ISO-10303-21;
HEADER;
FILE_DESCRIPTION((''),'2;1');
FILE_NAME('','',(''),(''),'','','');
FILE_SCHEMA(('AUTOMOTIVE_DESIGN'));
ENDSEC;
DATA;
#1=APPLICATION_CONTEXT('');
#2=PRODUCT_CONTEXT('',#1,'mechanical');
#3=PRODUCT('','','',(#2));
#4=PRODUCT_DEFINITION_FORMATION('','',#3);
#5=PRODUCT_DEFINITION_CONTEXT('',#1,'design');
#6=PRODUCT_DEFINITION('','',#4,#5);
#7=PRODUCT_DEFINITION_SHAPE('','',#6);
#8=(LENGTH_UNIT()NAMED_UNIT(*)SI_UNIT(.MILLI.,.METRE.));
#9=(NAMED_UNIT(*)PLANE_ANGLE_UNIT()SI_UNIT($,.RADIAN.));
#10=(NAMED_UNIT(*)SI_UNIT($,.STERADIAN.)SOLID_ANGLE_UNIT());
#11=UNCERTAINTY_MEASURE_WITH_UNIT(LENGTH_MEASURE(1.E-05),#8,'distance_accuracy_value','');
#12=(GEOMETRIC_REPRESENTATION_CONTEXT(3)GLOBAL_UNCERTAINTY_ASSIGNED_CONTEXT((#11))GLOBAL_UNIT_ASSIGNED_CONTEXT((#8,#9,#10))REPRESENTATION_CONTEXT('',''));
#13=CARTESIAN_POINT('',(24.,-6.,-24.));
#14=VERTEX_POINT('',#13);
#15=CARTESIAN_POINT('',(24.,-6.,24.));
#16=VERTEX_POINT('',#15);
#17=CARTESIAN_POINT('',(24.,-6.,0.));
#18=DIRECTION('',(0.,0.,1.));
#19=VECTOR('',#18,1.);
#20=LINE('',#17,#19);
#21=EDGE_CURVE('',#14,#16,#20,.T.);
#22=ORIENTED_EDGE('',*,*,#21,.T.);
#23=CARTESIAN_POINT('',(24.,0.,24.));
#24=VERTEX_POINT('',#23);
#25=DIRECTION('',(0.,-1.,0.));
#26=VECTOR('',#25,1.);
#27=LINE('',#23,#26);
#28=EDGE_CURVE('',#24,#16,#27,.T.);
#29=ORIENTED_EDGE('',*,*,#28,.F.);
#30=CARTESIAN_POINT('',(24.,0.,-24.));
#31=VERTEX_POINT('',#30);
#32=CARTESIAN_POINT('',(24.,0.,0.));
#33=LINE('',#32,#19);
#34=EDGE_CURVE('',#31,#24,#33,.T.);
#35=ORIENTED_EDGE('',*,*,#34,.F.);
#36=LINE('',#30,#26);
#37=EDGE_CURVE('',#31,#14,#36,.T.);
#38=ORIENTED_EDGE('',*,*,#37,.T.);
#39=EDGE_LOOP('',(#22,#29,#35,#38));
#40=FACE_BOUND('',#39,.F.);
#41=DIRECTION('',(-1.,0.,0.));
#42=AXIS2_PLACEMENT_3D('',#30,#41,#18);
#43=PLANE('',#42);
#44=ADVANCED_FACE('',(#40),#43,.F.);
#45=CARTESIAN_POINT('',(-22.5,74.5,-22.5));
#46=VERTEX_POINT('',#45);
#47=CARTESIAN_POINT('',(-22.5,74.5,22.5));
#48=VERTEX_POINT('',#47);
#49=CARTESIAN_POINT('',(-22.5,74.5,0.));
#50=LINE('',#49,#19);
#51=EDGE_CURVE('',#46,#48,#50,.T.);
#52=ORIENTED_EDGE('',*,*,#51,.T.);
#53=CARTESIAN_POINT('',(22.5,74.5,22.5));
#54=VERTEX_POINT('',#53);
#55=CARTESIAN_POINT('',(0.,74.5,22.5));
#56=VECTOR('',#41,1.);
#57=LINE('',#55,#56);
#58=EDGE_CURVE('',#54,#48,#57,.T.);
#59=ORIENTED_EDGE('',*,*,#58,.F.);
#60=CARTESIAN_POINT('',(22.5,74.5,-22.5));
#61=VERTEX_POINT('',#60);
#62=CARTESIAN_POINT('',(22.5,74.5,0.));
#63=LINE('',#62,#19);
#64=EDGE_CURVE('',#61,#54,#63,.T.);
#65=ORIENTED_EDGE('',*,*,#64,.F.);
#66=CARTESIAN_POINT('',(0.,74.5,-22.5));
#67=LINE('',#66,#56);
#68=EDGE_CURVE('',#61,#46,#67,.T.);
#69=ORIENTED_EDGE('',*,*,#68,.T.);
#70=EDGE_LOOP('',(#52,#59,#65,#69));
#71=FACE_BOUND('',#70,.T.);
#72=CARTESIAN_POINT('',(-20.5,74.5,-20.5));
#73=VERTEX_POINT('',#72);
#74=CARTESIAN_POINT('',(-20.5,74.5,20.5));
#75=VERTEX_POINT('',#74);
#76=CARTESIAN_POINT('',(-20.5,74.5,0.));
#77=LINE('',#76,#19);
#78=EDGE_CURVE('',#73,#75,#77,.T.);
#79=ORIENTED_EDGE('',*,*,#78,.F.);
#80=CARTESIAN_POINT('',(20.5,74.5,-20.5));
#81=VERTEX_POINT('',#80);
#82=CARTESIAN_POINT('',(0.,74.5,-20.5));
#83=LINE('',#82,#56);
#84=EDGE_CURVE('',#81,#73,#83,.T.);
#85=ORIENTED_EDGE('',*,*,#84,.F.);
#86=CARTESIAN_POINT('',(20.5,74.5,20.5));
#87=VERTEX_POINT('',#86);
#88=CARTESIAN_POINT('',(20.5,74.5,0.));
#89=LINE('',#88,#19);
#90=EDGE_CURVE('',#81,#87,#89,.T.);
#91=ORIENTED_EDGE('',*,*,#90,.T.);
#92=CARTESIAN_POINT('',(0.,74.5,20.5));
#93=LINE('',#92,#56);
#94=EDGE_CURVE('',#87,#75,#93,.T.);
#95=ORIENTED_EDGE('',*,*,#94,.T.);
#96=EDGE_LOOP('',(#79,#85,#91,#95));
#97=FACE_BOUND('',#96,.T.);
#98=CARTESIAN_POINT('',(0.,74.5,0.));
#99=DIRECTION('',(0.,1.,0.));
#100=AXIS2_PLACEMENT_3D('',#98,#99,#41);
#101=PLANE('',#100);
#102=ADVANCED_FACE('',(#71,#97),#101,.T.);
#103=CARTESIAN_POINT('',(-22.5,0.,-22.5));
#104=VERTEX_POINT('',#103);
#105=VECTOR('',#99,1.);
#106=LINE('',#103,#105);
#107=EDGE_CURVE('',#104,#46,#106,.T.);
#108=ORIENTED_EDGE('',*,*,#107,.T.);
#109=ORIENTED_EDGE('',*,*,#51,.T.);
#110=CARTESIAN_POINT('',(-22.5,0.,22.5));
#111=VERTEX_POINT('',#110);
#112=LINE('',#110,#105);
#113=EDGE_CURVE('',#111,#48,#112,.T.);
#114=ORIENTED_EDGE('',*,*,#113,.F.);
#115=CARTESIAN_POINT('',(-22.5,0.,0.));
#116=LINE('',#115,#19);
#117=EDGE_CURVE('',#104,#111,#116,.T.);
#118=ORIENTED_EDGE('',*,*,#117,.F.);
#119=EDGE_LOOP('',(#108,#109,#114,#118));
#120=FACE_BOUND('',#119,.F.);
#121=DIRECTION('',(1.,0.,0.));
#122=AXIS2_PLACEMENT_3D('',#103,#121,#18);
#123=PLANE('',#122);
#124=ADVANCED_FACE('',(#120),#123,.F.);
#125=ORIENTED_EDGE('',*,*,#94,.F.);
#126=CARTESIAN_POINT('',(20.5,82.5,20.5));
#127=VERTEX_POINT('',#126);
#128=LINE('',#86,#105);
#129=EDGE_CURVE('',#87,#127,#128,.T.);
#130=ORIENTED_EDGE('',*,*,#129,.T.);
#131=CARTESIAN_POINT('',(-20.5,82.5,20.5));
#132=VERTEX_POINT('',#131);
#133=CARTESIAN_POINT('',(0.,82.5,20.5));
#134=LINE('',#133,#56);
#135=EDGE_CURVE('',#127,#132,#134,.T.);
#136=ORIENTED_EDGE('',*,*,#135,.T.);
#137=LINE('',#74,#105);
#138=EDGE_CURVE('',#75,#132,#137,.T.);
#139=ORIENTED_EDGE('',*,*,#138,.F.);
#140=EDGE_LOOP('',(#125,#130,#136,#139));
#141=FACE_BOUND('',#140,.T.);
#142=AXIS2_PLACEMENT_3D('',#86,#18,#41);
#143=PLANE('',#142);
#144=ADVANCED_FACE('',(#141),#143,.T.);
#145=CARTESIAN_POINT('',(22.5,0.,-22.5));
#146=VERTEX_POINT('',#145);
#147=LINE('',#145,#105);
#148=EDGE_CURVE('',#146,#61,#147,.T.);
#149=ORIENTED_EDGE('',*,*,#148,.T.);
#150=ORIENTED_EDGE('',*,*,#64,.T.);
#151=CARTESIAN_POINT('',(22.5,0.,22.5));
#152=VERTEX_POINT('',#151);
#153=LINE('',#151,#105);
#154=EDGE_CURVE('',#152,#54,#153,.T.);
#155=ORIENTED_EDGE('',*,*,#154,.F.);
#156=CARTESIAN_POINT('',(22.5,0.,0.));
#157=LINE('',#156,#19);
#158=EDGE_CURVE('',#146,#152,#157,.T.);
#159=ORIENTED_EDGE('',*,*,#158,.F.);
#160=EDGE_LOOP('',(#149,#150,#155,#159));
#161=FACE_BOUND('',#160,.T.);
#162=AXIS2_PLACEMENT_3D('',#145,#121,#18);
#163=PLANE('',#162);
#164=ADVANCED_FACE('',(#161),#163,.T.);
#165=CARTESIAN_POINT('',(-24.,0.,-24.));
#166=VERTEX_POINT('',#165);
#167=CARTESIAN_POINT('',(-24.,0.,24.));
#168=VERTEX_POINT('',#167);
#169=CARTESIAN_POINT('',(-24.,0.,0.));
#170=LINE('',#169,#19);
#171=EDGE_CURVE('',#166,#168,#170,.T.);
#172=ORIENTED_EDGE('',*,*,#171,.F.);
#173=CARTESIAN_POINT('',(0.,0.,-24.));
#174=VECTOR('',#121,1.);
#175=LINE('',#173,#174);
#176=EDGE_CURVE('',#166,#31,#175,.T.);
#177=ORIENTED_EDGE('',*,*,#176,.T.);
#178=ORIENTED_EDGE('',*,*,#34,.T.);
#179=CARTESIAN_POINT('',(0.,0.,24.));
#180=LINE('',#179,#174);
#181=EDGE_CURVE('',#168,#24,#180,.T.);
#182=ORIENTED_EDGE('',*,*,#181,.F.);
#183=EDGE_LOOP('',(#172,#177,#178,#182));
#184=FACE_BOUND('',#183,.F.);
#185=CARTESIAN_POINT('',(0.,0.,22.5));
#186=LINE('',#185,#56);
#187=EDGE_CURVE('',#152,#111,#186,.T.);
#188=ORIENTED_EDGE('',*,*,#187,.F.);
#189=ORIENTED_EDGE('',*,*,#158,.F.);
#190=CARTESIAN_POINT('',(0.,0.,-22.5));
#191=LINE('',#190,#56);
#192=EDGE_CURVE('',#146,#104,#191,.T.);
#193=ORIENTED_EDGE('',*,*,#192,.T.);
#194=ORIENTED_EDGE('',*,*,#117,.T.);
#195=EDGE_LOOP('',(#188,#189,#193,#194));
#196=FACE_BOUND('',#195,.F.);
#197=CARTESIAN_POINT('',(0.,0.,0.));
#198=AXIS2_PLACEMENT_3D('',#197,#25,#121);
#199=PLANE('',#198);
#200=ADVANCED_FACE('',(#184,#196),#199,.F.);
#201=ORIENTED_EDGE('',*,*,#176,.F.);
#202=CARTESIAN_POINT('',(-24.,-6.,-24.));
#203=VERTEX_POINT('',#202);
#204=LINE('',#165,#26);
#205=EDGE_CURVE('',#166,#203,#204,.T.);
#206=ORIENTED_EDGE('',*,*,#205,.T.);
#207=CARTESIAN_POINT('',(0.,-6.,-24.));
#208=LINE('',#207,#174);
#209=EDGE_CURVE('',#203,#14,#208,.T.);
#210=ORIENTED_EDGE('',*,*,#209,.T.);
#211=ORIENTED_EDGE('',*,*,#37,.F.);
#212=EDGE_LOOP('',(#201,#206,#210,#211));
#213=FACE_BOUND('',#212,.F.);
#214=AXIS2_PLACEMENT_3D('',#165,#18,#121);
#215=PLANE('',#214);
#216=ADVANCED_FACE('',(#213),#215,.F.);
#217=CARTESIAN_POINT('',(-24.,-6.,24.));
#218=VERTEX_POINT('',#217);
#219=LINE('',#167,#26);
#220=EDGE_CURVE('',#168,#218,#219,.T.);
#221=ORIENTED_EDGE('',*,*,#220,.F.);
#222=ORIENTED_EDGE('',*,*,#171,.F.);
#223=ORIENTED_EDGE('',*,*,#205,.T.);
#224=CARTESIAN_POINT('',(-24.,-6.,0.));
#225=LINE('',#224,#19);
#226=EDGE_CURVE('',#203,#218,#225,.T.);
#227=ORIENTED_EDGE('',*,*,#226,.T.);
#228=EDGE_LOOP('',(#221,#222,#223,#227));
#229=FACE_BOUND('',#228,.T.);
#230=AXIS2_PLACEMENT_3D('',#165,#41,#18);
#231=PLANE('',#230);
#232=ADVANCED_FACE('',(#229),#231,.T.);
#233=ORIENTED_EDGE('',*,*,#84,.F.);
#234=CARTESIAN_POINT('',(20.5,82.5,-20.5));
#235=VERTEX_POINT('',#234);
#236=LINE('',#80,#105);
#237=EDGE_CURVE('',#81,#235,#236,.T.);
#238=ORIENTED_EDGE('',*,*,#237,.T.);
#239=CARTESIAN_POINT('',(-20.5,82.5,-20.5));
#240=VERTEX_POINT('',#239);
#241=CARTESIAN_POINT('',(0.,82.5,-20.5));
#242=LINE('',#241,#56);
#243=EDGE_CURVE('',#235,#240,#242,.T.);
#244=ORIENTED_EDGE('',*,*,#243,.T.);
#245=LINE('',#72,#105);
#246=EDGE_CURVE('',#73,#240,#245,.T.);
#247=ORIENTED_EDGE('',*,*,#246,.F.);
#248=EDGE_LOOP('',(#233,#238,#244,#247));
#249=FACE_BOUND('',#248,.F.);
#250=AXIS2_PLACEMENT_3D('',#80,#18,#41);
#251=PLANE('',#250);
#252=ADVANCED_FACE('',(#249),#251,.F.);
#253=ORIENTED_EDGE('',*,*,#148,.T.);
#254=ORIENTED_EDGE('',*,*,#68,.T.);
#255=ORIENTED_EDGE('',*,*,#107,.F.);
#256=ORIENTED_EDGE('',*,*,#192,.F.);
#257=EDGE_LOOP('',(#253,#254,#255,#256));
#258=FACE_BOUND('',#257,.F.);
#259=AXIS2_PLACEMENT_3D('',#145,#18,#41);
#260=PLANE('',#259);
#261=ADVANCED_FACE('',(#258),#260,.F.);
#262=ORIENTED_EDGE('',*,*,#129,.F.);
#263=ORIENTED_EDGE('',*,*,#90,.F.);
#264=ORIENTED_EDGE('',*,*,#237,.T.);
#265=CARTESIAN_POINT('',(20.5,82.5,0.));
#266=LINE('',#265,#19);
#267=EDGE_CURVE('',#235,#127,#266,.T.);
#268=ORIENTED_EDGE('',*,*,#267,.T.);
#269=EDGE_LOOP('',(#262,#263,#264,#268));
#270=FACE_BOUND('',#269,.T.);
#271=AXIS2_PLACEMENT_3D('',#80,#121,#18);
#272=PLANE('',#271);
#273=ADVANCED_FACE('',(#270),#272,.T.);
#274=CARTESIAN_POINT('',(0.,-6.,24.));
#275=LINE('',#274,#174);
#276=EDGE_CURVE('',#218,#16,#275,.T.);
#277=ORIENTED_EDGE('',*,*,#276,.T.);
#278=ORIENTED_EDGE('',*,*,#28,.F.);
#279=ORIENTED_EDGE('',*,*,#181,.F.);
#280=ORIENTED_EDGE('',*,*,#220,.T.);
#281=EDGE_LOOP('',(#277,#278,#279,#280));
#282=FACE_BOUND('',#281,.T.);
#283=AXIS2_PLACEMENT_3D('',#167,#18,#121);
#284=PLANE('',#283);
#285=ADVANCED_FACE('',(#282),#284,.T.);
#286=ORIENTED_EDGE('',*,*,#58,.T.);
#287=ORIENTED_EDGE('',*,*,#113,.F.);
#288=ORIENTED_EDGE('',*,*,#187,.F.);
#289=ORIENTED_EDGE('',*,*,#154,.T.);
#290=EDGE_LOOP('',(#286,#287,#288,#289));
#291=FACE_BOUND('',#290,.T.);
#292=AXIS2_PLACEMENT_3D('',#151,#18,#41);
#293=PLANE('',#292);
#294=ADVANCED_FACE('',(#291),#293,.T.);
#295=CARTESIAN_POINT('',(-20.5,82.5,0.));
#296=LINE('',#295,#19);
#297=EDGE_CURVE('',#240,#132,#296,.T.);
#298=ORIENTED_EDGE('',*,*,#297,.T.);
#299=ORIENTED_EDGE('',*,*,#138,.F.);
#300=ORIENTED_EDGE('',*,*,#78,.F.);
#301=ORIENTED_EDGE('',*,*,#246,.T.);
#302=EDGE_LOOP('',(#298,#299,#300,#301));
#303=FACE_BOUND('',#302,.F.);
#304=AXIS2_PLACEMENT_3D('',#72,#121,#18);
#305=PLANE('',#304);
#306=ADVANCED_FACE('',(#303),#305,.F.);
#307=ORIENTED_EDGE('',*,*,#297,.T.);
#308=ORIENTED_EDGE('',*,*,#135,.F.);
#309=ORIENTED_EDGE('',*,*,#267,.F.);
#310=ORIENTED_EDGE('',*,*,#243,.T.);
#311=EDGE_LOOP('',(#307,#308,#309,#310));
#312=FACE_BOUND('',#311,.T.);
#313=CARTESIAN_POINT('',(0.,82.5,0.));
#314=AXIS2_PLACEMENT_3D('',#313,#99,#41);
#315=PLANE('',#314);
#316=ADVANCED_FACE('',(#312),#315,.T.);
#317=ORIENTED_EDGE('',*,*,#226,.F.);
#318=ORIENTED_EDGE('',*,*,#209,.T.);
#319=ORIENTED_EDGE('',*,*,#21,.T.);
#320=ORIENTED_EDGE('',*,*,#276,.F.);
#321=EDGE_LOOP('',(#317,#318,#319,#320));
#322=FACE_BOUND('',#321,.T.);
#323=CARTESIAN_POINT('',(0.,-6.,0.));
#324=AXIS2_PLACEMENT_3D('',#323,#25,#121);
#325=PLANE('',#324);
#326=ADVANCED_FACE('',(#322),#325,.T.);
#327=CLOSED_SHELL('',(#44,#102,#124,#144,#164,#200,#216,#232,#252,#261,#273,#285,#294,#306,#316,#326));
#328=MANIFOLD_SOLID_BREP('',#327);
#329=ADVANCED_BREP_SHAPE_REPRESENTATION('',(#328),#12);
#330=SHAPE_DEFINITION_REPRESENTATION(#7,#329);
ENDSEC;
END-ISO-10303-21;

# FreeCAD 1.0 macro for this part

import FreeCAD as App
import Part
import Sketcher
from FreeCAD import Vector

doc = App.newDocument("Part")
body = doc.addObject("PartDesign::Body", "Body")

sketch1 = body.newObject("Sketcher::SketchObject", "Sketch")
sketch1.AttachmentSupport = (doc.getObject("XZ_Plane"), [""])
sketch1.MapMode = "FlatFace"
sketch1.addGeometry([
    Part.LineSegment(Vector(-24, 24, 0), Vector(-24, -24, 0)),
    Part.LineSegment(Vector(-24, -24, 0), Vector(24, -24, 0)),
    Part.LineSegment(Vector(24, -24, 0), Vector(24, 24, 0)),
    Part.LineSegment(Vector(24, 24, 0), Vector(-24, 24, 0)),
], False)
sketch1.addConstraint([
    Sketcher.Constraint("Coincident", 0, 2, 1, 1),
    Sketcher.Constraint("Coincident", 1, 2, 2, 1),
    Sketcher.Constraint("Coincident", 2, 2, 3, 1),
    Sketcher.Constraint("Coincident", 3, 2, 0, 1),
    Sketcher.Constraint("Vertical", 0),
    Sketcher.Constraint("Horizontal", 1),
    Sketcher.Constraint("Vertical", 2),
    Sketcher.Constraint("Horizontal", 3),
    Sketcher.Constraint("Symmetric", 0, 2, 2, 2, -1, 1),
    Sketcher.Constraint("Equal", 3, 0),
    Sketcher.Constraint("DistanceX", 1, 1, 1, 2, 48.0),
])
pad1 = body.newObject("PartDesign::Pad", "Pad")
pad1.Profile = sketch1
pad1.Length = 6

sketch2 = body.newObject("Sketcher::SketchObject", "Sketch001")
sketch2.AttachmentSupport = (doc.getObject("XZ_Plane"), [""])
sketch2.MapMode = "FlatFace"
sketch2.addGeometry([
    Part.LineSegment(Vector(22, 22, 0), Vector(22, -22, 0)),
    Part.LineSegment(Vector(22, -22, 0), Vector(-22, -22, 0)),
    Part.LineSegment(Vector(-22, -22, 0), Vector(-22, 22, 0)),
    Part.LineSegment(Vector(-22, 22, 0), Vector(22, 22, 0)),
], False)
sketch2.addConstraint([
    Sketcher.Constraint("Coincident", 0, 2, 1, 1),
    Sketcher.Constraint("Coincident", 1, 2, 2, 1),
    Sketcher.Constraint("Coincident", 2, 2, 3, 1),
    Sketcher.Constraint("Coincident", 3, 2, 0, 1),
    Sketcher.Constraint("Vertical", 0),
    Sketcher.Constraint("Horizontal", 1),
    Sketcher.Constraint("Vertical", 2),
    Sketcher.Constraint("Horizontal", 3),
    Sketcher.Constraint("Symmetric", 0, 2, 2, 2, -1, 1),
    Sketcher.Constraint("Equal", 3, 0),
    Sketcher.Constraint("DistanceX", 1, 2, 1, 1, 45.0),
])
pad2 = body.newObject("PartDesign::Pad", "Pad001")
pad2.Profile = sketch2
pad2.Length = 74.5
pad2.Reversed = True

sketch3 = body.newObject("Sketcher::SketchObject", "Sketch002")
sketch3.AttachmentSupport = (doc.getObject("XZ_Plane"), [""])
sketch3.MapMode = "FlatFace"
sketch3.AttachmentOffset = App.Placement(Vector(0, 0, -74.5), App.Rotation())
sketch3.addGeometry([
    Part.LineSegment(Vector(20, 20, 0), Vector(20, -20, 0)),
    Part.LineSegment(Vector(20, -20, 0), Vector(-20, -20, 0)),
    Part.LineSegment(Vector(-20, -20, 0), Vector(-20, 20, 0)),
    Part.LineSegment(Vector(-20, 20, 0), Vector(20, 20, 0)),
], False)
sketch3.addConstraint([
    Sketcher.Constraint("Coincident", 0, 2, 1, 1),
    Sketcher.Constraint("Coincident", 1, 2, 2, 1),
    Sketcher.Constraint("Coincident", 2, 2, 3, 1),
    Sketcher.Constraint("Coincident", 3, 2, 0, 1),
    Sketcher.Constraint("Vertical", 0),
    Sketcher.Constraint("Horizontal", 1),
    Sketcher.Constraint("Vertical", 2),
    Sketcher.Constraint("Horizontal", 3),
    Sketcher.Constraint("Symmetric", 0, 2, 2, 2, -1, 1),
    Sketcher.Constraint("Equal", 3, 0),
    Sketcher.Constraint("DistanceX", 1, 2, 1, 1, 41.0),
])
pad3 = body.newObject("PartDesign::Pad", "Pad002")
pad3.Profile = sketch3
pad3.Length = 8
pad3.Reversed = True

doc.recompute()
